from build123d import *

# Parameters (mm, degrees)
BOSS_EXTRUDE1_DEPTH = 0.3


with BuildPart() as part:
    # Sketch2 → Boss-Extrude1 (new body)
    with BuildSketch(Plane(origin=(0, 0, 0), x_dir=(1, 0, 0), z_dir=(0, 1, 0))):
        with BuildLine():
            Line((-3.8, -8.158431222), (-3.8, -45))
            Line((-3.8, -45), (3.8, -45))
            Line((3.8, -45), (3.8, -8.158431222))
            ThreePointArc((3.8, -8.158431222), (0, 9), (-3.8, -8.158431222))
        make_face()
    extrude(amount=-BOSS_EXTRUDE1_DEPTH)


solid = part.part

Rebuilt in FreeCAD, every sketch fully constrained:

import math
import FreeCAD as App
import Part
import Sketcher
Q = App.Units.Quantity

doc = App.newDocument("Part")
params = doc.addObject("Spreadsheet::Sheet", "Params")
for row, (alias, value) in enumerate([
    ("sketch1_radius", "9 mm"),
    ("sketch1_width", "7.6 mm"),
    ("pad1_length", "0.3 mm"),
], start=1):
    params.set(f"A{row}", alias)
    params.set(f"B{row}", "=" + value)
    params.setAlias(f"B{row}", alias)

body = doc.addObject("PartDesign::Body", "Body")

# Sketch on XZ plane
sketch1 = body.newObject("Sketcher::SketchObject", "Sketch")
sketch1.AttachmentSupport = (doc.getObject("XZ_Plane"), [""])
sketch1.MapMode = "FlatFace"
sketch1.addGeometry(Part.LineSegment(App.Vector(-3.8, 8.158431, 0), App.Vector(-3.8, 45, 0)), False)
sketch1.addGeometry(Part.LineSegment(App.Vector(-3.8, 45, 0), App.Vector(3.8, 45, 0)), False)
sketch1.addGeometry(Part.LineSegment(App.Vector(3.8, 45, 0), App.Vector(3.8, 8.158431, 0)), False)
sketch1.addGeometry(Part.ArcOfCircle(Part.Circle(App.Vector(0, 0, 0), App.Vector(0, 0, 1), 9), math.radians(114.974965), math.radians(425.025035)), False)
sketch1.addConstraint(Sketcher.Constraint("Coincident", 0, 2, 1, 1))
sketch1.addConstraint(Sketcher.Constraint("Coincident", 1, 2, 2, 1))
sketch1.addConstraint(Sketcher.Constraint("Coincident", 2, 2, 3, 2))
sketch1.addConstraint(Sketcher.Constraint("Coincident", 3, 1, 0, 1))
sketch1.addConstraint(Sketcher.Constraint("Vertical", 0))
sketch1.addConstraint(Sketcher.Constraint("Horizontal", 1))
sketch1.addConstraint(Sketcher.Constraint("Vertical", 2))
sketch1.addConstraint(Sketcher.Constraint("Coincident", 3, 3, -1, 1))
sketch1.addConstraint(Sketcher.Constraint("Horizontal", 2, 2, 3, 1))
sketch1.addConstraint(Sketcher.Constraint("Radius", 3, Q("9 mm")))
sketch1.addConstraint(Sketcher.Constraint("DistanceX", 1, 1, 1, 2, Q("7.6 mm")))
sketch1.addConstraint(Sketcher.Constraint("DistanceY", -1, 1, 0, 2, Q("45 mm")))
sketch1.setExpression("Constraints[9]", "Params.sketch1_radius")
sketch1.setExpression("Constraints[10]", "Params.sketch1_width")
pad1 = body.newObject("PartDesign::Pad", "Pad")
pad1.Profile = sketch1
pad1.setExpression("Length", "Params.pad1_length")

doc.recompute()
